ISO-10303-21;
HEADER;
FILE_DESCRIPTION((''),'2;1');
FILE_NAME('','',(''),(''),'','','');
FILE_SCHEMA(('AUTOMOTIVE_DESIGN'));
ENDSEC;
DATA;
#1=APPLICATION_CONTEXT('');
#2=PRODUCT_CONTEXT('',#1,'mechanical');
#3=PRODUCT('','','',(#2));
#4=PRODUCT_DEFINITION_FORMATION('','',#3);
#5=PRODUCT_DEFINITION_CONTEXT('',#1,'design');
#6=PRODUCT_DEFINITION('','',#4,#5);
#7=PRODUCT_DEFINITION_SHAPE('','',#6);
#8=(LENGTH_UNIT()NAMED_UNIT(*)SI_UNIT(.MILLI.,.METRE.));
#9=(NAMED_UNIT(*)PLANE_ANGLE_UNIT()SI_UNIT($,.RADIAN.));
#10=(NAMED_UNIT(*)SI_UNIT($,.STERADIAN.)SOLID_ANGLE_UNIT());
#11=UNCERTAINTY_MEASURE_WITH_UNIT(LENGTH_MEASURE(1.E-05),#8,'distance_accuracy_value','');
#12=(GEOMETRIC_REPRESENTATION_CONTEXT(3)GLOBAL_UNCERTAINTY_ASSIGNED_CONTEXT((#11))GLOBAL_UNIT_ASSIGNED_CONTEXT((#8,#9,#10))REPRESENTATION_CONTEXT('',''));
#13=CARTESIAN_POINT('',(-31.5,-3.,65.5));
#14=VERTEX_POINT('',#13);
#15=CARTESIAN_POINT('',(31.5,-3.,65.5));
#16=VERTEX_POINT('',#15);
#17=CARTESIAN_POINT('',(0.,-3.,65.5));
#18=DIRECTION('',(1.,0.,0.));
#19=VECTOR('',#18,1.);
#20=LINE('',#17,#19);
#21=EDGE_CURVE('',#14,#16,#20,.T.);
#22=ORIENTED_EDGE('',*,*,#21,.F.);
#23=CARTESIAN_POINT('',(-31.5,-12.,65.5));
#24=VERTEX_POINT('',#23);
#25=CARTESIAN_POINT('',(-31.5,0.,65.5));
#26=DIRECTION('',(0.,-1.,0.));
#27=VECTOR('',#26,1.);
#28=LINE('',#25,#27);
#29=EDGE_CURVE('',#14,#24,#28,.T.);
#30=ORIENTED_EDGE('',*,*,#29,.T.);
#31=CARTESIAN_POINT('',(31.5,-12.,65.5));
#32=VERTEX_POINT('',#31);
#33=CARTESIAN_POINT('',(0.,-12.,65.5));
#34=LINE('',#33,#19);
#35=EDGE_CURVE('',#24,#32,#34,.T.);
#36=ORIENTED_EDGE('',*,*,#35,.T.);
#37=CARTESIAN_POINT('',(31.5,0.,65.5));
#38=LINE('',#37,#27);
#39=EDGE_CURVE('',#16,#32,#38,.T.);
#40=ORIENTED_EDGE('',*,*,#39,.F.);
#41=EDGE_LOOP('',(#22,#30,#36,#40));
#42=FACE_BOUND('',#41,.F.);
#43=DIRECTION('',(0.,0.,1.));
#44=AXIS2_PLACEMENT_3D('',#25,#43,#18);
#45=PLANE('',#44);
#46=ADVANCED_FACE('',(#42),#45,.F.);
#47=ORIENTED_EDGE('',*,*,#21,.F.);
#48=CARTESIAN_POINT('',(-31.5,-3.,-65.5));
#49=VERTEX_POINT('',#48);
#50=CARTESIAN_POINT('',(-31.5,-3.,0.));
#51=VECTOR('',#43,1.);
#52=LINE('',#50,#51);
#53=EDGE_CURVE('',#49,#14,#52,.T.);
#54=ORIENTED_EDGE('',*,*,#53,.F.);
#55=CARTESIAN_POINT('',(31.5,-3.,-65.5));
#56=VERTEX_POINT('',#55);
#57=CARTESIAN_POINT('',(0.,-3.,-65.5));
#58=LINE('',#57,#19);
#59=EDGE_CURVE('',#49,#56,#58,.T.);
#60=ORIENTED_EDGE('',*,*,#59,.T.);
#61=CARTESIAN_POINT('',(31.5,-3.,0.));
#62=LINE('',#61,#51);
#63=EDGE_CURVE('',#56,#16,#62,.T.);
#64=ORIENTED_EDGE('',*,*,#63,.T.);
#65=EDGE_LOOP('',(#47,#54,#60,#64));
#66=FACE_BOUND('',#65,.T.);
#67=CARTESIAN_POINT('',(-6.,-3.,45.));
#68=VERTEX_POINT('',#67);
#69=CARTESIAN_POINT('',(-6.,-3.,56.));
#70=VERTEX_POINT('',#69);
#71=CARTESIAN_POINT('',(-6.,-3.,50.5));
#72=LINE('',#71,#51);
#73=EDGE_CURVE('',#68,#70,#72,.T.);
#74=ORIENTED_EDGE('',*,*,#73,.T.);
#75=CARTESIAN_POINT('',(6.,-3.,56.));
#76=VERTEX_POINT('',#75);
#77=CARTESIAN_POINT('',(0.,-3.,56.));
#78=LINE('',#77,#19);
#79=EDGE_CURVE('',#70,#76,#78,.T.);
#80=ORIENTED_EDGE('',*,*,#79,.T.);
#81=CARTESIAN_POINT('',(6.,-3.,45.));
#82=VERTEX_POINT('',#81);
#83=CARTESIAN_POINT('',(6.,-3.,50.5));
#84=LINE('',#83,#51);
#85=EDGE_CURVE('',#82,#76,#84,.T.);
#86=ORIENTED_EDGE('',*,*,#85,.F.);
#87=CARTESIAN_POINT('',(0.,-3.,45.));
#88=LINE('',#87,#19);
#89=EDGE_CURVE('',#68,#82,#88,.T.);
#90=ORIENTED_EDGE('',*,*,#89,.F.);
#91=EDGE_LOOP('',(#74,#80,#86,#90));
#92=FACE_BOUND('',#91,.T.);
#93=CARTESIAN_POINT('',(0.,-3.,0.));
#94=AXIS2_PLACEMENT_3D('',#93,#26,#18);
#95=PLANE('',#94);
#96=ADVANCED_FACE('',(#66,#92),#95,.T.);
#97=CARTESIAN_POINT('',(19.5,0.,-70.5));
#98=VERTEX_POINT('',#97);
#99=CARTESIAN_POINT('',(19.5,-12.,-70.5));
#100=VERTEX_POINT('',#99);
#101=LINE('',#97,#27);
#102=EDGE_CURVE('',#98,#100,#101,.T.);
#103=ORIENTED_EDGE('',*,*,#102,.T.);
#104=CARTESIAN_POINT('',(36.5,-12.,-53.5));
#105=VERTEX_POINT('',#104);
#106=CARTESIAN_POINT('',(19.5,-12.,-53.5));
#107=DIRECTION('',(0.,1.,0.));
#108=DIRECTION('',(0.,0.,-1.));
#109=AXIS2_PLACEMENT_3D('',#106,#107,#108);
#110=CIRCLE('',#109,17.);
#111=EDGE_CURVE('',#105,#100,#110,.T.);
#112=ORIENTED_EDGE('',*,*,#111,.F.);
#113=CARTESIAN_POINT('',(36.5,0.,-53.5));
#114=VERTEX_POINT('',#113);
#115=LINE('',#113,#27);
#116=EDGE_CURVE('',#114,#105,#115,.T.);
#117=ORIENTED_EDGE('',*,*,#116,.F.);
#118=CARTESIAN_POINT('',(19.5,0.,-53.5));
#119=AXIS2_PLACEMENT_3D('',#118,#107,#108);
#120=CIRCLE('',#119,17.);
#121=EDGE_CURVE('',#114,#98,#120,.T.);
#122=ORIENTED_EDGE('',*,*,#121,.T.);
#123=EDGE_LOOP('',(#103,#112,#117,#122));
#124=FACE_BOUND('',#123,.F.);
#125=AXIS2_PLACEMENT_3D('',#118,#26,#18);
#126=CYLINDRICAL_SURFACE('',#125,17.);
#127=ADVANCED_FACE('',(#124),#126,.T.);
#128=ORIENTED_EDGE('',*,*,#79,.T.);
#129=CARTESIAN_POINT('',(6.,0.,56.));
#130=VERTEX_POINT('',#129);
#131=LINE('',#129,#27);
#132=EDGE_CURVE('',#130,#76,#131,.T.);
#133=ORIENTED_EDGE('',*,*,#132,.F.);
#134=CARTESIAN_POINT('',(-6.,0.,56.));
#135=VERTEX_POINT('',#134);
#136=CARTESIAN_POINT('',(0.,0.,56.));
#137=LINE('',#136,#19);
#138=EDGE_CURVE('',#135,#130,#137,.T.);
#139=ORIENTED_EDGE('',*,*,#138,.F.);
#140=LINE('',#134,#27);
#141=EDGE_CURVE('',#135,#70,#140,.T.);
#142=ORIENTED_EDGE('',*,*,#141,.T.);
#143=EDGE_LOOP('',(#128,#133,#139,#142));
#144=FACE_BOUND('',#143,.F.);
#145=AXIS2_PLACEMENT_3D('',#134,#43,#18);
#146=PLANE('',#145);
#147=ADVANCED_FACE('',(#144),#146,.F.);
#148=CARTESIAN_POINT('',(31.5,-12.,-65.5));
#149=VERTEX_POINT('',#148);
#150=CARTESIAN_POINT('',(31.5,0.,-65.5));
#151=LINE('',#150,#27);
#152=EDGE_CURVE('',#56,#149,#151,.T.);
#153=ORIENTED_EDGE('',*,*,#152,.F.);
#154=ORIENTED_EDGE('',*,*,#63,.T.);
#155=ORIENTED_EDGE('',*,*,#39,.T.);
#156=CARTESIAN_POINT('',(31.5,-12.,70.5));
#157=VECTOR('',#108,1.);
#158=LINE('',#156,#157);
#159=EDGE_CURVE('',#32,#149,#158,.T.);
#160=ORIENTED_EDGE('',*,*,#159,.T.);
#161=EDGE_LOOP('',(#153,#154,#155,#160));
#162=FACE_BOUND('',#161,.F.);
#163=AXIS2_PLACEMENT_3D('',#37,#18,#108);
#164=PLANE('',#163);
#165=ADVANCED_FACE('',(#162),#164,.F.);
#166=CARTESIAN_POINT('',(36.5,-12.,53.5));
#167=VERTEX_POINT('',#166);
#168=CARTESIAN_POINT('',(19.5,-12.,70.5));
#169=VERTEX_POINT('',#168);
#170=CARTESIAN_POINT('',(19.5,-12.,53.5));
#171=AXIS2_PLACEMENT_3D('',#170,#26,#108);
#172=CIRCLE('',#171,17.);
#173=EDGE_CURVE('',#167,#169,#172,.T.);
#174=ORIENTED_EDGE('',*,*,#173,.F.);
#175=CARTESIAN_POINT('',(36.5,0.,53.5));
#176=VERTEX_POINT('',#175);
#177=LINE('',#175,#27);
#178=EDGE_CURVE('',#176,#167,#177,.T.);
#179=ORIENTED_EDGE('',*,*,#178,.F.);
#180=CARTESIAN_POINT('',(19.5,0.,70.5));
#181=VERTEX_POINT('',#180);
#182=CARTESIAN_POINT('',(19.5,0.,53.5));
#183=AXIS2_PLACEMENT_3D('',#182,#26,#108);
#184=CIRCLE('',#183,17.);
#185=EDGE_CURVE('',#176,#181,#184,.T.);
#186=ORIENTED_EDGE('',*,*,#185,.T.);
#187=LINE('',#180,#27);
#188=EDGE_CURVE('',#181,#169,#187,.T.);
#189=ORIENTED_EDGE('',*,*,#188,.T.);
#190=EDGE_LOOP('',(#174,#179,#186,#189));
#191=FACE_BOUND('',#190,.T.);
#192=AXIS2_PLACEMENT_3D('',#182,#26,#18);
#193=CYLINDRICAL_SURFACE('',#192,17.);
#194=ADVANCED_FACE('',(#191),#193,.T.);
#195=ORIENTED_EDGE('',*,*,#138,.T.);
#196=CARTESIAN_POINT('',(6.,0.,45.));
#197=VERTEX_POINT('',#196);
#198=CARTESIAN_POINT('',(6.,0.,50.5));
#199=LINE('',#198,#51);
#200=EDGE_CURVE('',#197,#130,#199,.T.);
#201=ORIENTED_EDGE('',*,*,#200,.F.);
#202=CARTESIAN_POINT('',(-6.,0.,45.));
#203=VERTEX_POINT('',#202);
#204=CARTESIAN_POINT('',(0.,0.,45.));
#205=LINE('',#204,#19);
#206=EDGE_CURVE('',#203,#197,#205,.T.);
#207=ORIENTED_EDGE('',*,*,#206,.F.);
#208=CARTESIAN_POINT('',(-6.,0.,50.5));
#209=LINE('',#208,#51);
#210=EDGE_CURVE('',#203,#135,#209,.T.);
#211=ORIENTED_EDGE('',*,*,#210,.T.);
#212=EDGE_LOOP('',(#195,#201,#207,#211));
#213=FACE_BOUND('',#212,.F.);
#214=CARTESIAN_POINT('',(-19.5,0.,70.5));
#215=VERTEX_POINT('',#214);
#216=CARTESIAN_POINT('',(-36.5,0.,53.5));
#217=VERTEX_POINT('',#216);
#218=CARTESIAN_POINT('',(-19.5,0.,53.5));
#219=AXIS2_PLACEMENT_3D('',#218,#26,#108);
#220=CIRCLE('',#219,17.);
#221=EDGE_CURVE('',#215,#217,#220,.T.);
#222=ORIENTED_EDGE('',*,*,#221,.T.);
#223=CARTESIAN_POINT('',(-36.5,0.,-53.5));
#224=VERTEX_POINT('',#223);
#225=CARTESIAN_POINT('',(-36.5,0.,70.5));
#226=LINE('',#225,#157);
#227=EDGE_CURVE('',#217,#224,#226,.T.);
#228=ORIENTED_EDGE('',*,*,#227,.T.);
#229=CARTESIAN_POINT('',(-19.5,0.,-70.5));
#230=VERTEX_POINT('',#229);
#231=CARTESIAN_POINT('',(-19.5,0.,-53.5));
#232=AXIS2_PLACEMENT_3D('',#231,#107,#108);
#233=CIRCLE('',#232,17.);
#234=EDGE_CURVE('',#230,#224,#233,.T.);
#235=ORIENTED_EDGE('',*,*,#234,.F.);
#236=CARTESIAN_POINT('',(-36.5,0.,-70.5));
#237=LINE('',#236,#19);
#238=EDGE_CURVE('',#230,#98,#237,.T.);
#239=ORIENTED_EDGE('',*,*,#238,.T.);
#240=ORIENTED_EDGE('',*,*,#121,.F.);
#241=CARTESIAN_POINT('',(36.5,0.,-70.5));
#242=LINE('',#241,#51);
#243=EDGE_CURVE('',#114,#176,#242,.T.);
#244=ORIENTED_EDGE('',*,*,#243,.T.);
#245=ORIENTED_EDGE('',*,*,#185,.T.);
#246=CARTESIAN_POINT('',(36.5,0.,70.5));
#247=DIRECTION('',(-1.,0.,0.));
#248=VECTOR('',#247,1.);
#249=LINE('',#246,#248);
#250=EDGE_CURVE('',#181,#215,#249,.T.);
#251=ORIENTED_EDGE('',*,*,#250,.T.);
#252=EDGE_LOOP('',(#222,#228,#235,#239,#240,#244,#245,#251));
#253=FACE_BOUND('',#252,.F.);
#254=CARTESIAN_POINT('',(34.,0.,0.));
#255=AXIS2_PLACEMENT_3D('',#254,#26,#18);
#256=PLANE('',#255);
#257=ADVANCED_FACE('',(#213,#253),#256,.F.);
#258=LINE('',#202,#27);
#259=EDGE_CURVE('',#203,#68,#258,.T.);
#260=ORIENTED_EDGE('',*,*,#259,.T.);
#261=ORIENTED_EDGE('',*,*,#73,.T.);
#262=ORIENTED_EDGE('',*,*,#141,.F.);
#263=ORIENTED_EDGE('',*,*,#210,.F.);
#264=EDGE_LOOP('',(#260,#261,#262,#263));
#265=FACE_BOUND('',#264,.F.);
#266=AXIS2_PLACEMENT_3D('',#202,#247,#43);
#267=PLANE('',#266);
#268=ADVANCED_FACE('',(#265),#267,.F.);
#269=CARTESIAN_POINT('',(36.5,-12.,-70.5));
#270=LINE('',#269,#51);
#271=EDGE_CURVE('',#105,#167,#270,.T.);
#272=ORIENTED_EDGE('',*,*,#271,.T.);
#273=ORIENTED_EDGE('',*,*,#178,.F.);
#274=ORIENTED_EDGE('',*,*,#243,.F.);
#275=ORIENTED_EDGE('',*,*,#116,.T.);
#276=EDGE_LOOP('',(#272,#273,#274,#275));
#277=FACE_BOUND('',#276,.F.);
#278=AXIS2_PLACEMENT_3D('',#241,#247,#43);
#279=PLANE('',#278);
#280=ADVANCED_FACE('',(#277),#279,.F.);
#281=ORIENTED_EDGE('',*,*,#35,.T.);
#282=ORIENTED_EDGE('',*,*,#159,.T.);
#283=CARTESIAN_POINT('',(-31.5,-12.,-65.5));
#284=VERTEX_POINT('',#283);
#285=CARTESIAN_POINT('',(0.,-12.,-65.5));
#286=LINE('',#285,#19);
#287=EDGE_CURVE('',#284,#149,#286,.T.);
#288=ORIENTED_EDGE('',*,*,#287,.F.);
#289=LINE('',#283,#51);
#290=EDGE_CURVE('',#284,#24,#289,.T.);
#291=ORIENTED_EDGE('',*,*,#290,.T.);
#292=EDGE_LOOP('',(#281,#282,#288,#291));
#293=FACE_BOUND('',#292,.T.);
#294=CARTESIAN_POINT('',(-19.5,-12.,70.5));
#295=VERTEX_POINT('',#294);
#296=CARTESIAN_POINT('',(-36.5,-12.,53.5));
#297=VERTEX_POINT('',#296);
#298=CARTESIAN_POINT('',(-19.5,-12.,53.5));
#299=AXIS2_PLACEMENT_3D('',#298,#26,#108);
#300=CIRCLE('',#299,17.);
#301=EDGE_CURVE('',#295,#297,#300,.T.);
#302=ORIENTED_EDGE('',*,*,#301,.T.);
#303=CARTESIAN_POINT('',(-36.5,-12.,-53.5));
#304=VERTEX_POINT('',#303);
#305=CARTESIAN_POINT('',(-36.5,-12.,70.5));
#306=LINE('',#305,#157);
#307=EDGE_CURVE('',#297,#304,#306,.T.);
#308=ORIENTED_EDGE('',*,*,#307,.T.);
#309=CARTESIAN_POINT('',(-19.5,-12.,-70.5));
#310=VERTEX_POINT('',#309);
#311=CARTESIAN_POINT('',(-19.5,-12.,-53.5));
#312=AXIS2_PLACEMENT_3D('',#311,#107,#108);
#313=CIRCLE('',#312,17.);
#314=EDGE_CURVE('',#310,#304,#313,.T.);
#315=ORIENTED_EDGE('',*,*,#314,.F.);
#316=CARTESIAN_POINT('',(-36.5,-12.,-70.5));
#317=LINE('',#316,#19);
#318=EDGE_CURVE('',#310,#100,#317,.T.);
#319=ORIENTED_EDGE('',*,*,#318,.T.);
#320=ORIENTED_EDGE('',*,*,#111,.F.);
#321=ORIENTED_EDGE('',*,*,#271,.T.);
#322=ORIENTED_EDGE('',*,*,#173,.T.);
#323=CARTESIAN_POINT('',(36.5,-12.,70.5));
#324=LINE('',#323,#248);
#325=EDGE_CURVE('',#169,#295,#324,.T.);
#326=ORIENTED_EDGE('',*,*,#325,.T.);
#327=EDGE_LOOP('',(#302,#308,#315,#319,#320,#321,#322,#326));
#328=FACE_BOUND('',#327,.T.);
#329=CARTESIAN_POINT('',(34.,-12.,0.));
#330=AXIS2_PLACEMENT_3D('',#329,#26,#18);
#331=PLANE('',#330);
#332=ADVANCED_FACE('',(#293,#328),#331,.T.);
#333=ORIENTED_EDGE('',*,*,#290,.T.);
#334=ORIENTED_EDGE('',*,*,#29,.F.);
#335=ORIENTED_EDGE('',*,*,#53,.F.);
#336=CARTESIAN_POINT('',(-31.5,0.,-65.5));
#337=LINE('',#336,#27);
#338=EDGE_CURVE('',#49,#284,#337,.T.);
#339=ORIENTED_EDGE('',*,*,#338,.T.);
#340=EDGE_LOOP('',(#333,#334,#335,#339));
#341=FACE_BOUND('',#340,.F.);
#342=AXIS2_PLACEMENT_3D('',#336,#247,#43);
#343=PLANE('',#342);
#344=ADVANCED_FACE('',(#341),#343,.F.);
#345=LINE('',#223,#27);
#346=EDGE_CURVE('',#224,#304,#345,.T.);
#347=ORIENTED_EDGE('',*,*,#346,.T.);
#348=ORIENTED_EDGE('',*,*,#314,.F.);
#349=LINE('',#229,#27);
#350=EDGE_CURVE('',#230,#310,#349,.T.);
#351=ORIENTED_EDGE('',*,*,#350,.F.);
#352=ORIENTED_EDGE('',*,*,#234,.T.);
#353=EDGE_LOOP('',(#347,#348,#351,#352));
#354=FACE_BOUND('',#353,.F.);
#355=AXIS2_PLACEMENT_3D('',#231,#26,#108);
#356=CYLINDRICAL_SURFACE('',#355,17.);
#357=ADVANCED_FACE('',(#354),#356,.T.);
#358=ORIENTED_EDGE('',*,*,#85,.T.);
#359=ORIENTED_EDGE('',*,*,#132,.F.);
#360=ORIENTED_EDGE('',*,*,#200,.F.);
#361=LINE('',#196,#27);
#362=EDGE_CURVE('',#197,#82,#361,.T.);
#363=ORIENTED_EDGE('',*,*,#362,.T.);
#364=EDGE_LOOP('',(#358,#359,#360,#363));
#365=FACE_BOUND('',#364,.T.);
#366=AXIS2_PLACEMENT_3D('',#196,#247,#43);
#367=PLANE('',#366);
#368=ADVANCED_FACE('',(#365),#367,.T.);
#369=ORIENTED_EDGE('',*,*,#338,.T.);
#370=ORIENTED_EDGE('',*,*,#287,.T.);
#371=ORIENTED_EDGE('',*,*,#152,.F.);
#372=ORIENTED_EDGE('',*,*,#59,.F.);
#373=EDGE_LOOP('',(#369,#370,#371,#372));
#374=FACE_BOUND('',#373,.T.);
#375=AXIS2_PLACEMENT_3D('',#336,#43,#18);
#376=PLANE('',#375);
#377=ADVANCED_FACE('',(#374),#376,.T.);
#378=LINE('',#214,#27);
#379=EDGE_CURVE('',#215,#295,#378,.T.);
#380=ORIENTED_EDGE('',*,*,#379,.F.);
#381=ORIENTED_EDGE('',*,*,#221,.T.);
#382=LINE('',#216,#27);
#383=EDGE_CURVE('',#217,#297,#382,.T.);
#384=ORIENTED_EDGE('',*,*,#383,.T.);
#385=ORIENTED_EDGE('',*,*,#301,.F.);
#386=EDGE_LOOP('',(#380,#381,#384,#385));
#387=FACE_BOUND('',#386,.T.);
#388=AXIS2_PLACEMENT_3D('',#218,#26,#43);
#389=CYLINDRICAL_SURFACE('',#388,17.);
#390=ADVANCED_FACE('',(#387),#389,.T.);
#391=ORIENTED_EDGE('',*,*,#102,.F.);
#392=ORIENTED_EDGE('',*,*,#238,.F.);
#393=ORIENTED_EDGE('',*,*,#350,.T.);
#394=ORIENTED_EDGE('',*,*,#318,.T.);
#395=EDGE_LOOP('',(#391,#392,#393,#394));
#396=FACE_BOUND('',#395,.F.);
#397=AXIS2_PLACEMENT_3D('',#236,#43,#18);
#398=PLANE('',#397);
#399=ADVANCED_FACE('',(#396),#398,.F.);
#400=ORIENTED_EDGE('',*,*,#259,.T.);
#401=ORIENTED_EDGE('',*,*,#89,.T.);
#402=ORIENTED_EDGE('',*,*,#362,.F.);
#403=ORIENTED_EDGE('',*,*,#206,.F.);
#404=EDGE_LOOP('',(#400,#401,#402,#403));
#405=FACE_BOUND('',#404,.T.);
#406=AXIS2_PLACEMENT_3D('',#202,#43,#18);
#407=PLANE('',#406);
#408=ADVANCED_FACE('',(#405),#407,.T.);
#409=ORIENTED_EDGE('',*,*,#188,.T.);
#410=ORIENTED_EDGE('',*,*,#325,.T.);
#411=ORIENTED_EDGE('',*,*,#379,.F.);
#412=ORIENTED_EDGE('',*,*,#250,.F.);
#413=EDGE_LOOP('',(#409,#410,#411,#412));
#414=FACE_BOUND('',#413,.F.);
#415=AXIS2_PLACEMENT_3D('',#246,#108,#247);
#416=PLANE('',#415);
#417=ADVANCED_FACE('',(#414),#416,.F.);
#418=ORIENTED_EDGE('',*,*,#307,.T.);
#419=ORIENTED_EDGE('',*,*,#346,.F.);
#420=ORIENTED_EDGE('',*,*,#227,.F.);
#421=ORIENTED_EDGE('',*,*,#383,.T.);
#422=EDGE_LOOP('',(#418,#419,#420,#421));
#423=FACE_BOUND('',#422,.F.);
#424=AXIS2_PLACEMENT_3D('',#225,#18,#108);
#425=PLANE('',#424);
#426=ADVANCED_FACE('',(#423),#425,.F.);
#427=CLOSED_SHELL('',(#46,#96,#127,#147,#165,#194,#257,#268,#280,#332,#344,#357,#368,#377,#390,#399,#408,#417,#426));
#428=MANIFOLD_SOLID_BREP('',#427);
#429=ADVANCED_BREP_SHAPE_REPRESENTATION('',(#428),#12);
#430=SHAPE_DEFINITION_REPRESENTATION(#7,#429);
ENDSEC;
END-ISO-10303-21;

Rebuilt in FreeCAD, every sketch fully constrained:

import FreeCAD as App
import Part
import Sketcher


def edges_at(feature, points):
    """Names of the edges that pass closest to the given points."""
    edges = feature.Shape.Edges
    near = lambda p: min(range(len(edges)), key=lambda i: edges[i].distToShape(Part.Vertex(*p))[0])
    return sorted({f"Edge{near(p) + 1}" for p in points})


def add_polygon(sketch, points):
    """Adds a closed chain of lines whose ends are joined by coincident constraints."""
    first, n = sketch.GeometryCount, len(points)
    for a, b in zip(points, points[1:] + points[:1]):
        sketch.addGeometry(Part.LineSegment(App.Vector(*a, 0), App.Vector(*b, 0)), False)
    for i in range(n):
        sketch.addConstraint(Sketcher.Constraint("Coincident", first + i, 2, first + (i + 1) % n, 1))

doc = App.newDocument("Part")
body = doc.addObject("PartDesign::Body", "Body")

sketch1 = doc.addObject("Sketcher::SketchObject", "Sketch")
body.addObject(sketch1)
sketch1.AttachmentSupport = (doc.XZ_Plane, [""])
sketch1.MapMode = "FlatFace"
add_polygon(sketch1, [(-32, 66), (-32, -66), (32, -66), (32, 66)])
add_polygon(sketch1, [(6, 45), (-6, 45), (-6, 56), (6, 56)])
sketch1.addConstraint(Sketcher.Constraint("Vertical", 0))
sketch1.addConstraint(Sketcher.Constraint("Horizontal", 1))
sketch1.addConstraint(Sketcher.Constraint("Vertical", 2))
sketch1.addConstraint(Sketcher.Constraint("Horizontal", 3))
sketch1.addConstraint(Sketcher.Constraint("Horizontal", 4))
sketch1.addConstraint(Sketcher.Constraint("Vertical", 5))
sketch1.addConstraint(Sketcher.Constraint("Horizontal", 6))
sketch1.addConstraint(Sketcher.Constraint("Vertical", 7))
sketch1.addConstraint(Sketcher.Constraint("Symmetric", 0, 2, 2, 2, -1, 1))
sketch1.addConstraint(Sketcher.Constraint("DistanceX", 1, 1, 1, 2, 63.0))
sketch1.addConstraint(Sketcher.Constraint("DistanceX", 4, 2, 4, 1, 12.0))
sketch1.addConstraint(Sketcher.Constraint("DistanceY", 0, 2, 0, 1, 131.0))
sketch1.addConstraint(Sketcher.Constraint("DistanceY", 5, 1, 5, 2, 11.0))
sketch1.addConstraint(Sketcher.Constraint("DistanceX", 4, 2, -1, 1, 6.0))
sketch1.addConstraint(Sketcher.Constraint("DistanceY", -1, 1, 4, 2, 45.0))
pad1 = doc.addObject("PartDesign::Pad", "Pad")
body.addObject(pad1)
pad1.Profile = sketch1
pad1.Length = 3

sketch2 = doc.addObject("Sketcher::SketchObject", "Sketch001")
body.addObject(sketch2)
sketch2.AttachmentSupport = (doc.XZ_Plane, [""])
sketch2.MapMode = "FlatFace"
add_polygon(sketch2, [(36, -70), (36, 70), (-36, 70), (-36, -70)])
add_polygon(sketch2, [(32, 66), (32, -66), (-32, -66), (-32, 66)])
sketch2.addConstraint(Sketcher.Constraint("Vertical", 0))
sketch2.addConstraint(Sketcher.Constraint("Horizontal", 1))
sketch2.addConstraint(Sketcher.Constraint("Vertical", 2))
sketch2.addConstraint(Sketcher.Constraint("Horizontal", 3))
sketch2.addConstraint(Sketcher.Constraint("Vertical", 4))
sketch2.addConstraint(Sketcher.Constraint("Horizontal", 5))
sketch2.addConstraint(Sketcher.Constraint("Vertical", 6))
sketch2.addConstraint(Sketcher.Constraint("Horizontal", 7))
sketch2.addConstraint(Sketcher.Constraint("Symmetric", 0, 2, 2, 2, -1, 1))
sketch2.addConstraint(Sketcher.Constraint("Symmetric", 4, 2, 6, 2, -1, 1))
sketch2.addConstraint(Sketcher.Constraint("DistanceX", 1, 2, 1, 1, 73.0))
sketch2.addConstraint(Sketcher.Constraint("DistanceX", 5, 2, 5, 1, 63.0))
sketch2.addConstraint(Sketcher.Constraint("DistanceY", 0, 1, 0, 2, 141.0))
sketch2.addConstraint(Sketcher.Constraint("DistanceY", 4, 2, 4, 1, 131.0))
pad2 = doc.addObject("PartDesign::Pad", "Pad001")
body.addObject(pad2)
pad2.Profile = sketch2
pad2.Length = 12
doc.recompute()

fillet = doc.addObject("PartDesign::Fillet", "Fillet")
body.addObject(fillet)
fillet.Base = (pad2, edges_at(pad2, [
    (36.5, -6, 70.5),
    (-36.5, -6, 70.5),
    (-36.5, -6, -70.5),
    (36.5, -6, -70.5),
]))
fillet.Radius = 17

doc.recompute()
